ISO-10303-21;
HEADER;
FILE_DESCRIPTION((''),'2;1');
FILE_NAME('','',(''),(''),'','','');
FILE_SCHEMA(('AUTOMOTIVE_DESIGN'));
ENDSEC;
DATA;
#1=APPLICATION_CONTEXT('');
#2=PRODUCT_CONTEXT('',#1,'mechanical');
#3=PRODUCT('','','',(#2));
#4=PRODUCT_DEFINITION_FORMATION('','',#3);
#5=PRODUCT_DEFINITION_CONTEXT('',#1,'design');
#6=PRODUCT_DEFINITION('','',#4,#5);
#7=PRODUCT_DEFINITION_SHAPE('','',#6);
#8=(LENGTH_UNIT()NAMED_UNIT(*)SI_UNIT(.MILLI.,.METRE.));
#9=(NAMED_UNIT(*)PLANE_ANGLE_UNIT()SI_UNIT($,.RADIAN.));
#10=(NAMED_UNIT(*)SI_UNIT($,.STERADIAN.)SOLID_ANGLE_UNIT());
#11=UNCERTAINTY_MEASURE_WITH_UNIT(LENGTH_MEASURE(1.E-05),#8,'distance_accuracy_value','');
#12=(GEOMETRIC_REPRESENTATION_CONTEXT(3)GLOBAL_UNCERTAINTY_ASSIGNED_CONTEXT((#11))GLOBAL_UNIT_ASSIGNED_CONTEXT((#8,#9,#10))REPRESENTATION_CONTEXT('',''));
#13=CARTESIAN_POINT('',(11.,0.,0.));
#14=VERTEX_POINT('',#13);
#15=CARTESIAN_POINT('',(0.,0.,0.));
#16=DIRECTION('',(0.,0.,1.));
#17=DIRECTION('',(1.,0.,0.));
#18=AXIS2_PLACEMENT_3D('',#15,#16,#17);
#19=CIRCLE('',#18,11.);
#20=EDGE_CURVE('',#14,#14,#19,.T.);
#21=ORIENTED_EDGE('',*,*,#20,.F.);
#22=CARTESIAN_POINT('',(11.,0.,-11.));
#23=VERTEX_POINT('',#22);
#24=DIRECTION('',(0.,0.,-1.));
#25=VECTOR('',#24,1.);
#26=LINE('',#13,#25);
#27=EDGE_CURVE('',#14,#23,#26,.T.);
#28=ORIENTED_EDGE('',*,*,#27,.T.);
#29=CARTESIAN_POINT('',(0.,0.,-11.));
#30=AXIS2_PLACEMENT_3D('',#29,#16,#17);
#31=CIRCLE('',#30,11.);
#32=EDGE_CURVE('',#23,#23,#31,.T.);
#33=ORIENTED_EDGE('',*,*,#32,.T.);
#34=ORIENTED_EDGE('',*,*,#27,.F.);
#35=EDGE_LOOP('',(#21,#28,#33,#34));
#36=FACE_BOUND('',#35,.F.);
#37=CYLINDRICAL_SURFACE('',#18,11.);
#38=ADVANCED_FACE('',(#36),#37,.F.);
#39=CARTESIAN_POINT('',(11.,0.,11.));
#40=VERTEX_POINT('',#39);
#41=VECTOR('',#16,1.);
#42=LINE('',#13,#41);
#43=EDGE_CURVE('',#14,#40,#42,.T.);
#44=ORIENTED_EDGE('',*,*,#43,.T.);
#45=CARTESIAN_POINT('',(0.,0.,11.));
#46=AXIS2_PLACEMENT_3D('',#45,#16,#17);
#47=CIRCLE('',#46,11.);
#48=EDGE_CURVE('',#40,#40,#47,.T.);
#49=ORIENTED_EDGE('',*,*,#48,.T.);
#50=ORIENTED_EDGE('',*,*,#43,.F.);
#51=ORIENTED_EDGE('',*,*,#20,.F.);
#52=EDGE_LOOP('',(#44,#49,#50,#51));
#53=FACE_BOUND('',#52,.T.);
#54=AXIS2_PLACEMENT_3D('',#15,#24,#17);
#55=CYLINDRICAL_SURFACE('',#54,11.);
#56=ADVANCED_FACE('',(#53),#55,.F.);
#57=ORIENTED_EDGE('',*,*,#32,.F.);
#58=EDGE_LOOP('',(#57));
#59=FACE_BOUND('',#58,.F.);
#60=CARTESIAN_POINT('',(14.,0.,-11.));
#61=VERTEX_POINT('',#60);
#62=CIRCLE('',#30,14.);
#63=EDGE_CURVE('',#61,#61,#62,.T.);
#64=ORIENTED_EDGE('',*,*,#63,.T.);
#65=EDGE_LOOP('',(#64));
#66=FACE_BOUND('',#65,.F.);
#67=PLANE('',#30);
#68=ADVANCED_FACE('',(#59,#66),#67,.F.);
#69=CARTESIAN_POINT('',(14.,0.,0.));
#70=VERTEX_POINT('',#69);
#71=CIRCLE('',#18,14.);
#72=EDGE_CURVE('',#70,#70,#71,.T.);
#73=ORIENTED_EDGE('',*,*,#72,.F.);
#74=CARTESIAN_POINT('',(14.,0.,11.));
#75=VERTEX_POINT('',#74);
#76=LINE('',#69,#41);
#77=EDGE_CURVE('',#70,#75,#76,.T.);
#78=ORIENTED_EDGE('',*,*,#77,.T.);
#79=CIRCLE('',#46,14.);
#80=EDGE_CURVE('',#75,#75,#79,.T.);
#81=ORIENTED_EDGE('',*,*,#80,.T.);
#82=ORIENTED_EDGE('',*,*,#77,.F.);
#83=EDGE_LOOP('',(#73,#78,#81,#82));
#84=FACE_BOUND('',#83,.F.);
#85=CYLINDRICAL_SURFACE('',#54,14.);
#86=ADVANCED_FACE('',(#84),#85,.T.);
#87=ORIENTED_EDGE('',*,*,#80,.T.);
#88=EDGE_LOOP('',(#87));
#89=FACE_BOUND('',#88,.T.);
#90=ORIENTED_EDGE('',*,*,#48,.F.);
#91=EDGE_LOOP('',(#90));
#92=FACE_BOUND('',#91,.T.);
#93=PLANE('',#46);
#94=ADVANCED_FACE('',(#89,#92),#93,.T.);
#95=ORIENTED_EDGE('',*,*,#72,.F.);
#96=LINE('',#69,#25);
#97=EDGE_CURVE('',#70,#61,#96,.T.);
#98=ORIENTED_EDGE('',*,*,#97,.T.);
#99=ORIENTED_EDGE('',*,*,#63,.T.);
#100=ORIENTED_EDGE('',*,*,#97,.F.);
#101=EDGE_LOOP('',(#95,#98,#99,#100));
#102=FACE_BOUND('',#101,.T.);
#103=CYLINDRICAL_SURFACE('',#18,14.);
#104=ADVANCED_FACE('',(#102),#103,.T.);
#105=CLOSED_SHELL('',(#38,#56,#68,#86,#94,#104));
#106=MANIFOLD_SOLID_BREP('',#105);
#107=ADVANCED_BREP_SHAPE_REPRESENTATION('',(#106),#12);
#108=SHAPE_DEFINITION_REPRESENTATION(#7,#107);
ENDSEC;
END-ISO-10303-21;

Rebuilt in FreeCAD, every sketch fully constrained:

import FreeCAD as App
import Part
import Sketcher
from FreeCAD import Vector

doc = App.newDocument("Part")
params = doc.addObject("Spreadsheet::Sheet", "Params")
for row, (alias, value) in enumerate([
    ("sketch1_diameter", "28 mm"),
    ("sketch1_diameter2", "22 mm"),
    ("pad1_length", "22 mm"),
], start=1):
    params.set(f"A{row}", alias)
    params.set(f"B{row}", "=" + value)
    params.setAlias(f"B{row}", alias)

body = doc.addObject("PartDesign::Body", "Body")

sketch1 = body.newObject("Sketcher::SketchObject", "Sketch")
sketch1.AttachmentSupport = (doc.getObject("XY_Plane"), [""])
sketch1.MapMode = "FlatFace"
sketch1.addGeometry([
    Part.Circle(Vector(0, 0, 0), Vector(0, 0, 1), 14),
    Part.Circle(Vector(0, 0, 0), Vector(0, 0, 1), 11),
], False)
sketch1.addConstraint([
    Sketcher.Constraint("Coincident", 0, 3, -1, 1),
    Sketcher.Constraint("Coincident", 1, 3, -1, 1),
    Sketcher.Constraint("Diameter", 0, 28.0),
    Sketcher.Constraint("Diameter", 1, 22.0),
])
sketch1.setExpression("Constraints[2]", "Params.sketch1_diameter")
sketch1.setExpression("Constraints[3]", "Params.sketch1_diameter2")
pad1 = body.newObject("PartDesign::Pad", "Pad")
pad1.Profile = sketch1
pad1.setExpression("Length", "Params.pad1_length")
pad1.Midplane = True

doc.recompute()
